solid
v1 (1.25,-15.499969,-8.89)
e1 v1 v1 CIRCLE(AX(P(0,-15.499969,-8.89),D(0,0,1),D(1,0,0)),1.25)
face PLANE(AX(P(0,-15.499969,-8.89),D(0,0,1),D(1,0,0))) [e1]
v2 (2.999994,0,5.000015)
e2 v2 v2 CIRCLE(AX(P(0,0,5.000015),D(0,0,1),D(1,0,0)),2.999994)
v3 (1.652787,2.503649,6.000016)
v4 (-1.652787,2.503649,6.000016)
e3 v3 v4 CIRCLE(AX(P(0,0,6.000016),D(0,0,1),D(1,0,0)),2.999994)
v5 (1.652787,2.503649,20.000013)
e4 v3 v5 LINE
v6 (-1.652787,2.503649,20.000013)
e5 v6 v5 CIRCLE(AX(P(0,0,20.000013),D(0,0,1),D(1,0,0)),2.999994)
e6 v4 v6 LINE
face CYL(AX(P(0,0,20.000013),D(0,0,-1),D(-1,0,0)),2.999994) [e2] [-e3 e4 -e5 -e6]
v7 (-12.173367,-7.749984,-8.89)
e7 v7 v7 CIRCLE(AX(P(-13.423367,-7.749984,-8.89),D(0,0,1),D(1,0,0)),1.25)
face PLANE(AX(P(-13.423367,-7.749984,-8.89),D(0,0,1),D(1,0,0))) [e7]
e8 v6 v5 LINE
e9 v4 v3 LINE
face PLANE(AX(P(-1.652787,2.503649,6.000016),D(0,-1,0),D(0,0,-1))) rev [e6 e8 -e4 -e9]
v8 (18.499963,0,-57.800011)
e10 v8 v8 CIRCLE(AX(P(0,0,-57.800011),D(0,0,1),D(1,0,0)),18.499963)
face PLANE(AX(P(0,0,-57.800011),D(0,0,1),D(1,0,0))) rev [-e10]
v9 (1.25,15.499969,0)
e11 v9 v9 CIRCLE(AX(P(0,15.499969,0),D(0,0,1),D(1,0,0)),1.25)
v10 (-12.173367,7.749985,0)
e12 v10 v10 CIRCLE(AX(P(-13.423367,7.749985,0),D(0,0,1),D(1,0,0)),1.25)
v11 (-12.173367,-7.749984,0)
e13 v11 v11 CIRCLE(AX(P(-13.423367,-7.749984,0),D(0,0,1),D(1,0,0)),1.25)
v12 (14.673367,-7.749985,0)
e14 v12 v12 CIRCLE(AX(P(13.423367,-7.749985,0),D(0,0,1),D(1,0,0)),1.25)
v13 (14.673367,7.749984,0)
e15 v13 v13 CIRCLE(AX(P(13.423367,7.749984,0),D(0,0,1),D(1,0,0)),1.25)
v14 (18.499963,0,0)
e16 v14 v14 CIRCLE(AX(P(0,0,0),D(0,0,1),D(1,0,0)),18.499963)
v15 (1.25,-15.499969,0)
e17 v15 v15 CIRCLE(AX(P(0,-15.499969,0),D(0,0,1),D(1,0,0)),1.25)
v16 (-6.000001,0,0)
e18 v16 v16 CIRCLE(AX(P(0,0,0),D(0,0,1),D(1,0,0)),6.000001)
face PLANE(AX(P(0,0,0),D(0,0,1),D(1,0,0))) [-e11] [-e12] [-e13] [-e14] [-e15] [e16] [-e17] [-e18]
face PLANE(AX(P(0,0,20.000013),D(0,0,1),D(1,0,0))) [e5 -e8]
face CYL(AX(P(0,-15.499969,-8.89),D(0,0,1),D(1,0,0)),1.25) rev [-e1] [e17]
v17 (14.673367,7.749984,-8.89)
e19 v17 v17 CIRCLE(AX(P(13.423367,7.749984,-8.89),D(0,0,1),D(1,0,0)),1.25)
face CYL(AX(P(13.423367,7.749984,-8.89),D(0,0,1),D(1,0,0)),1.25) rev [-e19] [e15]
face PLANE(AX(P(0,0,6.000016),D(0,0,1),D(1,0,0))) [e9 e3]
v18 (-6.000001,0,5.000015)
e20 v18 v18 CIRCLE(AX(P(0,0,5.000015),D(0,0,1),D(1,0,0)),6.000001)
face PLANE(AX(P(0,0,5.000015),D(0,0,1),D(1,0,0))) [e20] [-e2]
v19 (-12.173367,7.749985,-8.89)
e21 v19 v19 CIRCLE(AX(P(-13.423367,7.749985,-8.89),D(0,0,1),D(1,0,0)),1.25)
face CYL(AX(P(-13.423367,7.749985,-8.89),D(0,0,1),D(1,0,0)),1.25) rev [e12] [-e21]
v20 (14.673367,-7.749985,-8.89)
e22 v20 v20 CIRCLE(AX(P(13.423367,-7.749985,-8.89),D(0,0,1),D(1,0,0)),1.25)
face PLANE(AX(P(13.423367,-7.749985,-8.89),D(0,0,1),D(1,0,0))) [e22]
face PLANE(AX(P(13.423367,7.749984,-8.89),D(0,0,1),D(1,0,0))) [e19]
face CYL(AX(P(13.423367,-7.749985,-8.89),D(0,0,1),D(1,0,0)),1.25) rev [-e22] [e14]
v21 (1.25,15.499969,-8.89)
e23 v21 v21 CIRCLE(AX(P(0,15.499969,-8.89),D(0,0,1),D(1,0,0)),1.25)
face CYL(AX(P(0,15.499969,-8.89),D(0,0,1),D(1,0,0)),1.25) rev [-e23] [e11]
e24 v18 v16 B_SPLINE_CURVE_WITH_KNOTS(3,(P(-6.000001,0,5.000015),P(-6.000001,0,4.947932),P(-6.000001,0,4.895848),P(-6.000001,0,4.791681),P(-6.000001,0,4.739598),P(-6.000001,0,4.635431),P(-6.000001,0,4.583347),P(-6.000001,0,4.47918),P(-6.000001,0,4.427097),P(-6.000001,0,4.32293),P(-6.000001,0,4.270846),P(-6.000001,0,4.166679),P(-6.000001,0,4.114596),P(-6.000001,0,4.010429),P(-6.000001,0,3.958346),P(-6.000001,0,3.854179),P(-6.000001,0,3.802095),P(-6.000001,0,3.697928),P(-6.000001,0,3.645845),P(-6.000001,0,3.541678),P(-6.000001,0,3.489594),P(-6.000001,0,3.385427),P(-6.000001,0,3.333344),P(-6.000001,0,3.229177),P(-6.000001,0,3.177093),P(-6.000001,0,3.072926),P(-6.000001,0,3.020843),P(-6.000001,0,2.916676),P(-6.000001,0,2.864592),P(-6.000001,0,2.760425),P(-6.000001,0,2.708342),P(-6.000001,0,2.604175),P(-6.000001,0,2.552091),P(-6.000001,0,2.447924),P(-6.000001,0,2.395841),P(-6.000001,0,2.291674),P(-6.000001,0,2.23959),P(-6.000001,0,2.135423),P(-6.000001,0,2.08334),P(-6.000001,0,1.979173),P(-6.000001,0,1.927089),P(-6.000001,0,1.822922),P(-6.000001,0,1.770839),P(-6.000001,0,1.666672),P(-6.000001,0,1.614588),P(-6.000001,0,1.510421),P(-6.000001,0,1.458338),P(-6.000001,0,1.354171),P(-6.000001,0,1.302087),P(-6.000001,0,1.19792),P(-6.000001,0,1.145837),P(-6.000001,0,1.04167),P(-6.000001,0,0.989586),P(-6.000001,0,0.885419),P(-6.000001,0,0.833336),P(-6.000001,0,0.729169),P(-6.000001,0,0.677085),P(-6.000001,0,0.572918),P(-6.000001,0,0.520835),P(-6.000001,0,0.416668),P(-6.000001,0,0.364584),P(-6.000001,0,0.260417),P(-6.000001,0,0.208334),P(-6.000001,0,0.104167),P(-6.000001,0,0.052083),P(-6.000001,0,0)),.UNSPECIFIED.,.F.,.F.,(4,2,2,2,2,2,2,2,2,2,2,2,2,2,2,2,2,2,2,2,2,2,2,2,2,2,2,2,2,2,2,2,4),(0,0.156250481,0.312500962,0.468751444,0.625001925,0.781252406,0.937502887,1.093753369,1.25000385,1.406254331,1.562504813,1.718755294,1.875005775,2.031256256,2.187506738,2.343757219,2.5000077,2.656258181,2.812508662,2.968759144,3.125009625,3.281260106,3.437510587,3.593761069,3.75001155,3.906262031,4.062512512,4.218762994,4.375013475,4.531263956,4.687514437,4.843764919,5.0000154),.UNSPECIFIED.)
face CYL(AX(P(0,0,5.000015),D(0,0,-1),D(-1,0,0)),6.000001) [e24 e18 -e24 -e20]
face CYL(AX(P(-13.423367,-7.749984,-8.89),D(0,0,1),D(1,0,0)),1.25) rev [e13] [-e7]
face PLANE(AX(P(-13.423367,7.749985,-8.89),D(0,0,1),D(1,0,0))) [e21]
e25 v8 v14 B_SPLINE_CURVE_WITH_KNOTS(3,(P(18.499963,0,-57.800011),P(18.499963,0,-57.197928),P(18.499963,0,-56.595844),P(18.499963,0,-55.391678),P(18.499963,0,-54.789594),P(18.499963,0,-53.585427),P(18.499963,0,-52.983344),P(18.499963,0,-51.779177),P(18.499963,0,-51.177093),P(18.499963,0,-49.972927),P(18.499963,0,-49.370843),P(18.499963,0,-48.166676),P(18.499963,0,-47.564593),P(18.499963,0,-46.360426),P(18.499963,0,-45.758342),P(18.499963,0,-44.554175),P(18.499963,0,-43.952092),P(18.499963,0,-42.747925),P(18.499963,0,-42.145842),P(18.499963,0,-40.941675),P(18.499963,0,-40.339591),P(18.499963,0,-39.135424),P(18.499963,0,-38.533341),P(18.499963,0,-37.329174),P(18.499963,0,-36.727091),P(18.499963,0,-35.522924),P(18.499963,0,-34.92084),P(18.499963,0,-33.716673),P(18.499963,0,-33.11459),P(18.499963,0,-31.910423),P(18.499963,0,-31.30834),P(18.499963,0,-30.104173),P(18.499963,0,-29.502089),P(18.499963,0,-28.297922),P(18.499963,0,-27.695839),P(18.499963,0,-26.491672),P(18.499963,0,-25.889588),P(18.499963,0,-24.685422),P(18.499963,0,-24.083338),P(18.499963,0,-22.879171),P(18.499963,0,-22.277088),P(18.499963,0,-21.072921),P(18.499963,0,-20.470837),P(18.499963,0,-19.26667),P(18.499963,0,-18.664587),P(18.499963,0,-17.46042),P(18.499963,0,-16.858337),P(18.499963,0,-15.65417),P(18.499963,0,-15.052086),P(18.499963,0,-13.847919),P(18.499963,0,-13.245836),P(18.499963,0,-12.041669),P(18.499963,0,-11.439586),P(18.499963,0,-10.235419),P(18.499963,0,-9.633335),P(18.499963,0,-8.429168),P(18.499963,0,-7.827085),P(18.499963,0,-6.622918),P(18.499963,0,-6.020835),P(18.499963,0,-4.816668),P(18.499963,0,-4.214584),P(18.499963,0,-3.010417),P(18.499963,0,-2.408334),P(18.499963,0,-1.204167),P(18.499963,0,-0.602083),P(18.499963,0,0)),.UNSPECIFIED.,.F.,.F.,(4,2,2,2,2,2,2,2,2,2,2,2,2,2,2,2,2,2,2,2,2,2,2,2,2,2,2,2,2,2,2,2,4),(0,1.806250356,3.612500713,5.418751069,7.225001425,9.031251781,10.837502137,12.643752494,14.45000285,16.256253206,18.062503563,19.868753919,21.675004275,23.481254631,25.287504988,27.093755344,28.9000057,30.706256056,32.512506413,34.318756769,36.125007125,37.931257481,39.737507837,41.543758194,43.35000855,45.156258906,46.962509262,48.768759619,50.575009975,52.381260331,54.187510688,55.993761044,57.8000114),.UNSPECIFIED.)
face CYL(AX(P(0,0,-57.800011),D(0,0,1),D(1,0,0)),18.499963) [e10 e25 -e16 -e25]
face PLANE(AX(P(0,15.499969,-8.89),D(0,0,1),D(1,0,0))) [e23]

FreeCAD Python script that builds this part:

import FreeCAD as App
import Part
import Sketcher

V = App.Vector

doc = App.newDocument("Part")
body = doc.addObject("PartDesign::Body", "Body")

sketch1 = body.newObject("Sketcher::SketchObject", "Sketch")
sketch1.AttachmentSupport = (doc.getObject("XY_Plane"), [""])
sketch1.MapMode = "FlatFace"
sketch1.addGeometry(Part.Circle(V(0, 0, 0), V(0, 0, 1), 18.499963), False)
sketch1.addConstraint(Sketcher.Constraint("Coincident", 0, 3, -1, 1))
sketch1.addConstraint(Sketcher.Constraint("Diameter", 0, 36.999926))
pad1 = body.newObject("PartDesign::Pad", "Pad")
pad1.Profile = sketch1
pad1.Length = 57.800011
pad1.Reversed = True

sketch2 = body.newObject("Sketcher::SketchObject", "Sketch001")
sketch2.AttachmentSupport = (doc.getObject("XY_Plane"), [""])
sketch2.MapMode = "FlatFace"
sketch2.addGeometry(Part.Circle(V(0, 0, 0), V(0, 0, 1), 2.999994), False)
sketch2.addConstraint(Sketcher.Constraint("Coincident", 0, 3, -1, 1))
sketch2.addConstraint(Sketcher.Constraint("Diameter", 0, 5.999988))
pad2 = body.newObject("PartDesign::Pad", "Pad001")
pad2.Profile = sketch2
pad2.Length = 20.000013

sketch3 = body.newObject("Sketcher::SketchObject", "Sketch002")
sketch3.AttachmentSupport = (doc.getObject("XY_Plane"), [""])
sketch3.MapMode = "FlatFace"
sketch3.addGeometry(Part.Circle(V(0, 0, 0), V(0, 0, 1), 6.000001), False)
sketch3.addConstraint(Sketcher.Constraint("Coincident", 0, 3, -1, 1))
sketch3.addConstraint(Sketcher.Constraint("Diameter", 0, 12.000001))
pad3 = body.newObject("PartDesign::Pad", "Pad002")
pad3.Profile = sketch3
pad3.Length = 5.000015

sketch4 = body.newObject("Sketcher::SketchObject", "Sketch003")
sketch4.AttachmentSupport = (doc.getObject("XY_Plane"), [""])
sketch4.MapMode = "FlatFace"
sketch4.addGeometry(Part.Circle(V(0, 15.499969, 0), V(0, 0, 1), 1.25), False)
sketch4.addGeometry(Part.Circle(V(13.423367, 7.749985, 0), V(0, 0, 1), 1.25), False)
sketch4.addGeometry(Part.Circle(V(13.423367, -7.749985, 0), V(0, 0, 1), 1.25), False)
sketch4.addGeometry(Part.Circle(V(0, -15.499969, 0), V(0, 0, 1), 1.25), False)
sketch4.addGeometry(Part.Circle(V(-13.423367, -7.749985, 0), V(0, 0, 1), 1.25), False)
sketch4.addGeometry(Part.Circle(V(-13.423367, 7.749985, 0), V(0, 0, 1), 1.25), False)
sketch4.addConstraint(Sketcher.Constraint("Equal", 0, 1))
sketch4.addConstraint(Sketcher.Constraint("Equal", 1, 2))
sketch4.addConstraint(Sketcher.Constraint("Equal", 2, 3))
sketch4.addConstraint(Sketcher.Constraint("Equal", 3, 4))
sketch4.addConstraint(Sketcher.Constraint("Equal", 4, 5))
sketch4.addConstraint(Sketcher.Constraint("Symmetric", 0, 3, 3, 3, -1, 1))
sketch4.addConstraint(Sketcher.Constraint("Symmetric", 1, 3, 4, 3, -1, 1))
sketch4.addConstraint(Sketcher.Constraint("Symmetric", 2, 3, 5, 3, -1, 1))
sketch4.addConstraint(Sketcher.Constraint("Symmetric", 2, 3, 4, 3, -2))
sketch4.addConstraint(Sketcher.Constraint("PointOnObject", 0, 3, -2))
sketch4.addConstraint(Sketcher.Constraint("Diameter", 0, 2.5))
sketch4.addConstraint(Sketcher.Constraint("DistanceY", -1, 1, 0, 3, 15.499969))
sketch4.addConstraint(Sketcher.Constraint("DistanceY", 2, 3, 1, 3, 15.499969))
sketch4.addConstraint(Sketcher.Constraint("DistanceX", -1, 1, 1, 3, 13.423367))
pocket1 = body.newObject("PartDesign::Pocket", "Pocket")
pocket1.Profile = sketch4
pocket1.Length = 8.89

sketch5 = body.newObject("Sketcher::SketchObject", "Sketch004")
sketch5.AttachmentSupport = (doc.getObject("XY_Plane"), [""])
sketch5.MapMode = "FlatFace"
sketch5.AttachmentOffset = App.Placement(V(0, 0, 20.000013), App.Rotation())
sketch5.addGeometry(Part.LineSegment(V(-1.652787, 3.003648, 0), V(-1.652787, 2.503649, 0)), False)
sketch5.addGeometry(Part.LineSegment(V(-1.652787, 2.503649, 0), V(1.652787, 2.503649, 0)), False)
sketch5.addGeometry(Part.LineSegment(V(1.652787, 2.503649, 0), V(1.652787, 3.003648, 0)), False)
sketch5.addGeometry(Part.LineSegment(V(1.652787, 3.003648, 0), V(-1.652787, 3.003648, 0)), False)
sketch5.addConstraint(Sketcher.Constraint("Coincident", 0, 2, 1, 1))
sketch5.addConstraint(Sketcher.Constraint("Coincident", 1, 2, 2, 1))
sketch5.addConstraint(Sketcher.Constraint("Coincident", 2, 2, 3, 1))
sketch5.addConstraint(Sketcher.Constraint("Coincident", 3, 2, 0, 1))
sketch5.addConstraint(Sketcher.Constraint("Vertical", 0))
sketch5.addConstraint(Sketcher.Constraint("Horizontal", 1))
sketch5.addConstraint(Sketcher.Constraint("Vertical", 2))
sketch5.addConstraint(Sketcher.Constraint("Horizontal", 3))
sketch5.addConstraint(Sketcher.Constraint("DistanceY", 0, 2, 0, 1, 0.499999))
sketch5.addConstraint(Sketcher.Constraint("DistanceX", 1, 1, 1, 2, 3.305574))
sketch5.addConstraint(Sketcher.Constraint("DistanceY", -1, 1, 0, 2, 2.503649))
sketch5.addConstraint(Sketcher.Constraint("DistanceX", 0, 2, -1, 1, 1.652787))
pocket2 = body.newObject("PartDesign::Pocket", "Pocket001")
pocket2.Profile = sketch5
pocket2.Length = 13.999997

doc.recompute()
